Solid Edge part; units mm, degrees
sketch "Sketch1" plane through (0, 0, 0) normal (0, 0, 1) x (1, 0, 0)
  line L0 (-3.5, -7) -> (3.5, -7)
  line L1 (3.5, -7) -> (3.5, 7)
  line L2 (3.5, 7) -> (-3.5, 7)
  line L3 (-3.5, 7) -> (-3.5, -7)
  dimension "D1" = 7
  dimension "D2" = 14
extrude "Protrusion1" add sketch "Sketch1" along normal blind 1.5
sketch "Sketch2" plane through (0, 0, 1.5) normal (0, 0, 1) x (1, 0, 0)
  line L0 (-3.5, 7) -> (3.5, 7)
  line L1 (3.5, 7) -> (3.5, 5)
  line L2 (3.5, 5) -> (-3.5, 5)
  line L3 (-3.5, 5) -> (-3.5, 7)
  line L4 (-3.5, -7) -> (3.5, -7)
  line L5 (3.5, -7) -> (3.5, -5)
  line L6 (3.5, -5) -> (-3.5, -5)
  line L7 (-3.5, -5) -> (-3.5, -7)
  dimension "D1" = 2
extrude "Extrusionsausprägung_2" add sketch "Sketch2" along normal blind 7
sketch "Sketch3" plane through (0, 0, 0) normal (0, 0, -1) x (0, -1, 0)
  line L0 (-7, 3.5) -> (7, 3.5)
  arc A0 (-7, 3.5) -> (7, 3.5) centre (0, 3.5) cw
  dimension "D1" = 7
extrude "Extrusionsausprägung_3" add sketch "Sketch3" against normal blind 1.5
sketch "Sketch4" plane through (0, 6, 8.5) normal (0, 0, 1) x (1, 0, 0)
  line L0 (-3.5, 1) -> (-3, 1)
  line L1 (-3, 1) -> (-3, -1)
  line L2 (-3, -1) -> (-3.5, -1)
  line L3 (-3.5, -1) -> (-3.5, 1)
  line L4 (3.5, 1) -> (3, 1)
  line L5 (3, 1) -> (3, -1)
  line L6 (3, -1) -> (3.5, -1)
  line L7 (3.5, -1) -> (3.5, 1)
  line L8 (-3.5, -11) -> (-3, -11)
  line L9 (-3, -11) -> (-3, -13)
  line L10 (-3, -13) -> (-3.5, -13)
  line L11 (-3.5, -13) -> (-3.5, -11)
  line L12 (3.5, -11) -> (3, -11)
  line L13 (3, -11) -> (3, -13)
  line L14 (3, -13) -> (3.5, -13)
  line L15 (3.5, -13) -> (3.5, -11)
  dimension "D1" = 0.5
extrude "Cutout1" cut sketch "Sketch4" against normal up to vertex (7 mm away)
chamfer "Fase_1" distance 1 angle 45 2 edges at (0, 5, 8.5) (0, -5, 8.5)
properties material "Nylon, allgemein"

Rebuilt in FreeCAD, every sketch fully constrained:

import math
import FreeCAD as App
import Part
import Sketcher

V = App.Vector
Q = App.Units.Quantity


def edges_at(feature, points):
    """Names of the edges that pass closest to the given points."""
    edges = feature.Shape.Edges
    near = lambda p: min(range(len(edges)), key=lambda i: edges[i].distToShape(Part.Vertex(*p))[0])
    return sorted({f"Edge{near(p) + 1}" for p in points})

doc = App.newDocument("Part")
body = doc.addObject("PartDesign::Body", "Body")

# Sketch on XY plane
sketch1 = body.newObject("Sketcher::SketchObject", "Sketch")
sketch1.AttachmentSupport = (doc.getObject("XY_Plane"), [""])
sketch1.MapMode = "FlatFace"
sketch1.addGeometry([
    Part.LineSegment(V(-4, 7, 0), V(-4, -7, 0)),
    Part.LineSegment(V(-4, -7, 0), V(4, -7, 0)),
    Part.LineSegment(V(4, -7, 0), V(4, 7, 0)),
    Part.LineSegment(V(4, 7, 0), V(-4, 7, 0)),
], False)
sketch1.addConstraint([
    Sketcher.Constraint("Coincident", 0, 2, 1, 1),
    Sketcher.Constraint("Coincident", 1, 2, 2, 1),
    Sketcher.Constraint("Coincident", 2, 2, 3, 1),
    Sketcher.Constraint("Coincident", 3, 2, 0, 1),
    Sketcher.Constraint("Vertical", 0),
    Sketcher.Constraint("Horizontal", 1),
    Sketcher.Constraint("Vertical", 2),
    Sketcher.Constraint("Horizontal", 3),
    Sketcher.Constraint("Symmetric", 0, 2, 2, 2, -1, 1),
    Sketcher.Constraint("DistanceX", 0, 2, -1, 1, Q("3.5 mm")),
    Sketcher.Constraint("DistanceY", 0, 2, 0, 1, Q("14 mm")),
])
pad1 = body.newObject("PartDesign::Pad", "Pad")
pad1.Profile = sketch1
pad1.Length = 1.5

# Sketch on XY plane
sketch2 = body.newObject("Sketcher::SketchObject", "Sketch001")
sketch2.AttachmentSupport = (doc.getObject("XY_Plane"), [""])
sketch2.MapMode = "FlatFace"
sketch2.AttachmentOffset = App.Placement(V(0, 0, 1.5), App.Rotation())
sketch2.addGeometry([
    Part.LineSegment(V(3.5, 7, 0), V(-3.5, 7, 0)),  # 0
    Part.LineSegment(V(-3.5, 7, 0), V(-3.5, 5, 0)),  # 1
    Part.LineSegment(V(-3.5, 5, 0), V(3.5, 5, 0)),  # 2
    Part.LineSegment(V(3.5, 5, 0), V(3.5, 7, 0)),  # 3
    Part.LineSegment(V(-3.5, -5, 0), V(-3.5, -7, 0)),  # 4
    Part.LineSegment(V(-3.5, -7, 0), V(3.5, -7, 0)),  # 5
    Part.LineSegment(V(3.5, -7, 0), V(3.5, -5, 0)),  # 6
    Part.LineSegment(V(3.5, -5, 0), V(-3.5, -5, 0)),  # 7
], False)
sketch2.addConstraint([
    Sketcher.Constraint("Coincident", 0, 2, 1, 1),
    Sketcher.Constraint("Coincident", 1, 2, 2, 1),
    Sketcher.Constraint("Coincident", 2, 2, 3, 1),
    Sketcher.Constraint("Coincident", 3, 2, 0, 1),
    Sketcher.Constraint("Coincident", 4, 2, 5, 1),
    Sketcher.Constraint("Coincident", 5, 2, 6, 1),
    Sketcher.Constraint("Coincident", 6, 2, 7, 1),
    Sketcher.Constraint("Coincident", 7, 2, 4, 1),
    Sketcher.Constraint("Horizontal", 0),
    Sketcher.Constraint("Vertical", 1),
    Sketcher.Constraint("Horizontal", 2),
    Sketcher.Constraint("Vertical", 3),
    Sketcher.Constraint("Vertical", 4),
    Sketcher.Constraint("Horizontal", 5),
    Sketcher.Constraint("Vertical", 6),
    Sketcher.Constraint("Horizontal", 7),
    Sketcher.Constraint("Symmetric", 3, 2, 4, 2, -1, 1),
    Sketcher.Constraint("Symmetric", 1, 2, 6, 2, -1, 1),
    Sketcher.Constraint("Vertical", 1, 2, 4, 2),
    Sketcher.Constraint("DistanceX", 0, 2, -1, 1, Q("3.5 mm")),
    Sketcher.Constraint("DistanceY", 1, 2, 1, 1, Q("2 mm")),
    Sketcher.Constraint("DistanceY", -1, 1, 0, 2, Q("7 mm")),
])
pad2 = body.newObject("PartDesign::Pad", "Pad001")
pad2.Profile = sketch2
pad2.Length = 7

# Sketch on XY plane
sketch3 = body.newObject("Sketcher::SketchObject", "Sketch002")
sketch3.AttachmentSupport = (doc.getObject("XY_Plane"), [""])
sketch3.MapMode = "FlatFace"
sketch3.addGeometry([
    Part.ArcOfCircle(Part.Circle(V(-4, 0, 0), V(0, 0, 1), 7), math.radians(90), math.radians(270)),
    Part.LineSegment(V(-4, 7, 0), V(-4, -7, 0)),
], False)
sketch3.addConstraint([
    Sketcher.Constraint("Coincident", 0, 1, 1, 1),
    Sketcher.Constraint("Coincident", 1, 2, 0, 2),
    Sketcher.Constraint("Vertical", 1),
    Sketcher.Constraint("PointOnObject", 0, 3, -1),
    Sketcher.Constraint("Radius", 0, Q("7 mm")),
    Sketcher.Constraint("DistanceX", 0, 3, -1, 1, Q("3.5 mm")),
    Sketcher.Constraint("DistanceX", 0, 1, -1, 1, Q("3.5 mm")),
])
pad3 = body.newObject("PartDesign::Pad", "Pad002")
pad3.Profile = sketch3
pad3.Length = 1.5

# Sketch on XY plane
sketch4 = body.newObject("Sketcher::SketchObject", "Sketch003")
sketch4.AttachmentSupport = (doc.getObject("XY_Plane"), [""])
sketch4.MapMode = "FlatFace"
sketch4.AttachmentOffset = App.Placement(V(0, 0, 8.5), App.Rotation())
sketch4.addGeometry([
    Part.LineSegment(V(-3, 7, 0), V(-3.5, 7, 0)),  # 0
    Part.LineSegment(V(-3.5, 7, 0), V(-3.5, 5, 0)),  # 1
    Part.LineSegment(V(-3.5, 5, 0), V(-3, 5, 0)),  # 2
    Part.LineSegment(V(-3, 5, 0), V(-3, 7, 0)),  # 3
    Part.LineSegment(V(3.5, 5, 0), V(3.5, 7, 0)),  # 4
    Part.LineSegment(V(3.5, 7, 0), V(3, 7, 0)),  # 5
    Part.LineSegment(V(3, 7, 0), V(3, 5, 0)),  # 6
    Part.LineSegment(V(3, 5, 0), V(3.5, 5, 0)),  # 7
    Part.LineSegment(V(-3, -5, 0), V(-3.5, -5, 0)),  # 8
    Part.LineSegment(V(-3.5, -5, 0), V(-3.5, -7, 0)),  # 9
    Part.LineSegment(V(-3.5, -7, 0), V(-3, -7, 0)),  # 10
    Part.LineSegment(V(-3, -7, 0), V(-3, -5, 0)),  # 11
    Part.LineSegment(V(3.5, -7, 0), V(3.5, -5, 0)),  # 12
    Part.LineSegment(V(3.5, -5, 0), V(3, -5, 0)),  # 13
    Part.LineSegment(V(3, -5, 0), V(3, -7, 0)),  # 14
    Part.LineSegment(V(3, -7, 0), V(3.5, -7, 0)),  # 15
], False)
sketch4.addConstraint([
    Sketcher.Constraint("Coincident", 0, 2, 1, 1),
    Sketcher.Constraint("Coincident", 1, 2, 2, 1),
    Sketcher.Constraint("Coincident", 2, 2, 3, 1),
    Sketcher.Constraint("Coincident", 3, 2, 0, 1),
    Sketcher.Constraint("Coincident", 4, 2, 5, 1),
    Sketcher.Constraint("Coincident", 5, 2, 6, 1),
    Sketcher.Constraint("Coincident", 6, 2, 7, 1),
    Sketcher.Constraint("Coincident", 7, 2, 4, 1),
    Sketcher.Constraint("Coincident", 8, 2, 9, 1),
    Sketcher.Constraint("Coincident", 9, 2, 10, 1),
    Sketcher.Constraint("Coincident", 10, 2, 11, 1),
    Sketcher.Constraint("Coincident", 11, 2, 8, 1),
    Sketcher.Constraint("Coincident", 12, 2, 13, 1),
    Sketcher.Constraint("Coincident", 13, 2, 14, 1),
    Sketcher.Constraint("Coincident", 14, 2, 15, 1),
    Sketcher.Constraint("Coincident", 15, 2, 12, 1),
    Sketcher.Constraint("Horizontal", 0),
    Sketcher.Constraint("Vertical", 1),
    Sketcher.Constraint("Horizontal", 2),
    Sketcher.Constraint("Vertical", 3),
    Sketcher.Constraint("Vertical", 4),
    Sketcher.Constraint("Horizontal", 5),
    Sketcher.Constraint("Vertical", 6),
    Sketcher.Constraint("Horizontal", 7),
    Sketcher.Constraint("Horizontal", 8),
    Sketcher.Constraint("Vertical", 9),
    Sketcher.Constraint("Horizontal", 10),
    Sketcher.Constraint("Vertical", 11),
    Sketcher.Constraint("Vertical", 12),
    Sketcher.Constraint("Horizontal", 13),
    Sketcher.Constraint("Vertical", 14),
    Sketcher.Constraint("Horizontal", 15),
    Sketcher.Constraint("Symmetric", 7, 2, 8, 2, -1, 1),
    Sketcher.Constraint("Symmetric", 5, 2, 10, 2, -1, 1),
    Sketcher.Constraint("Symmetric", 1, 2, 12, 2, -1, 1),
    Sketcher.Constraint("Symmetric", 3, 2, 14, 2, -1, 1),
    Sketcher.Constraint("Symmetric", 0, 2, 4, 2, -2),
    Sketcher.Constraint("Symmetric", 2, 2, 6, 2, -2),
    Sketcher.Constraint("DistanceX", 2, 2, -1, 1, Q("3 mm")),
    Sketcher.Constraint("DistanceY", 1, 2, 1, 1, Q("2 mm")),
    Sketcher.Constraint("DistanceX", 0, 2, 0, 1, Q("0.5 mm")),
    Sketcher.Constraint("DistanceY", -1, 1, 0, 2, Q("7 mm")),
])
pocket1 = body.newObject("PartDesign::Pocket", "Pocket")
pocket1.Profile = sketch4
pocket1.Length = 7
doc.recompute()

chamfer = body.newObject("PartDesign::Chamfer", "Chamfer")
chamfer.Base = (pocket1, edges_at(pocket1, [(0, 5, 8.5), (0, -5, 8.5)]))
chamfer.Size = 1

doc.recompute()
